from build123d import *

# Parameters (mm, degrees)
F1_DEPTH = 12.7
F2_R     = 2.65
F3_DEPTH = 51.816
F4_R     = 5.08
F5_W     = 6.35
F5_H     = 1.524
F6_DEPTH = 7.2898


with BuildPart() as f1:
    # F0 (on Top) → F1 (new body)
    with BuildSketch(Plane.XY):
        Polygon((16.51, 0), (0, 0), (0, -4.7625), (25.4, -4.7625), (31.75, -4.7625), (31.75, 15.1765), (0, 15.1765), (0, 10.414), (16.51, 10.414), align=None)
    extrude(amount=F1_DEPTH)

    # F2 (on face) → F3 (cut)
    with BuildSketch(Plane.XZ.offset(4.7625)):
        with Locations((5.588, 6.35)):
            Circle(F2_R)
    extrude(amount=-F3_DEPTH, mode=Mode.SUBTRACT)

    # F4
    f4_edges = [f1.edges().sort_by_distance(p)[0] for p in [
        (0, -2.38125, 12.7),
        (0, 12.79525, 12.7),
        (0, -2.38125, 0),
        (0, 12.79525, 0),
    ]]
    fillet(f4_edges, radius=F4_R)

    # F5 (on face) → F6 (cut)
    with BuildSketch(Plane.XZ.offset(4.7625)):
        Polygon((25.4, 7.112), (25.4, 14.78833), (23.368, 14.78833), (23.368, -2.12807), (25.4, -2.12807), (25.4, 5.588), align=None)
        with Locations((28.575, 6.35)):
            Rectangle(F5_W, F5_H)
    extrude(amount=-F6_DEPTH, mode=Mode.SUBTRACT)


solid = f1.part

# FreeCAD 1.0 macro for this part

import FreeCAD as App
import Part
import Sketcher
Q = App.Units.Quantity


def edges_at(feature, points):
    """Names of the edges that pass closest to the given points."""
    edges = feature.Shape.Edges
    near = lambda p: min(range(len(edges)), key=lambda i: edges[i].distToShape(Part.Vertex(*p))[0])
    return sorted({f"Edge{near(p) + 1}" for p in points})


def add_polygon(sketch, points):
    """Adds a closed chain of lines whose ends are joined by coincident constraints."""
    first, n = sketch.GeometryCount, len(points)
    for a, b in zip(points, points[1:] + points[:1]):
        sketch.addGeometry(Part.LineSegment(App.Vector(*a, 0), App.Vector(*b, 0)), False)
    for i in range(n):
        sketch.addConstraint(Sketcher.Constraint("Coincident", first + i, 2, first + (i + 1) % n, 1))

doc = App.newDocument("Part")
body = doc.addObject("PartDesign::Body", "Body")

sketch1 = body.newObject("Sketcher::SketchObject", "Sketch")
sketch1.AttachmentSupport = (doc.getObject("XY_Plane"), [""])
sketch1.MapMode = "FlatFace"
add_polygon(sketch1, [(16.5, 0), (0, 0), (0, -4.8), (31.8, -4.8), (31.8, 15.2), (0, 15.2), (0, 10.4), (16.5, 10.4)])
sketch1.addConstraint(Sketcher.Constraint("Horizontal", 0))
sketch1.addConstraint(Sketcher.Constraint("Vertical", 1))
sketch1.addConstraint(Sketcher.Constraint("Horizontal", 2))
sketch1.addConstraint(Sketcher.Constraint("Vertical", 3))
sketch1.addConstraint(Sketcher.Constraint("Horizontal", 4))
sketch1.addConstraint(Sketcher.Constraint("Vertical", 5))
sketch1.addConstraint(Sketcher.Constraint("Horizontal", 6))
sketch1.addConstraint(Sketcher.Constraint("Vertical", 7))
sketch1.addConstraint(Sketcher.Constraint("Coincident", 0, 2, -1, 1))
sketch1.addConstraint(Sketcher.Constraint("PointOnObject", 4, 2, -2))
sketch1.addConstraint(Sketcher.Constraint("Equal", 1, 5))
sketch1.addConstraint(Sketcher.Constraint("DistanceX", 0, 2, 0, 1, Q("0.65 in")))
sketch1.addConstraint(Sketcher.Constraint("DistanceX", 2, 1, 2, 2, Q("1.25 in")))
sketch1.addConstraint(Sketcher.Constraint("DistanceY", 7, 2, 7, 1, Q("0.41 in")))
sketch1.addConstraint(Sketcher.Constraint("DistanceY", 1, 2, 1, 1, Q("0.1875 in")))
pad1 = body.newObject("PartDesign::Pad", "Pad")
pad1.Profile = sketch1
pad1.Length = Q("0.5 in")

sketch2 = body.newObject("Sketcher::SketchObject", "Sketch001")
sketch2.AttachmentSupport = (doc.getObject("XZ_Plane"), [""])
sketch2.MapMode = "FlatFace"
sketch2.AttachmentOffset = App.Placement(App.Vector(0, 0, 0.1875 * 25.4), App.Rotation())
sketch2.addGeometry(Part.Circle(App.Vector(5.6, 6.3, 0), App.Vector(0, 0, 1), 2.6), False)
sketch2.addConstraint(Sketcher.Constraint("Diameter", 0, Q("5.3 mm")))
sketch2.addConstraint(Sketcher.Constraint("DistanceX", -1, 1, 0, 3, Q("0.22 in")))
sketch2.addConstraint(Sketcher.Constraint("DistanceY", -1, 1, 0, 3, Q("0.25 in")))
pocket1 = body.newObject("PartDesign::Pocket", "Pocket")
pocket1.Profile = sketch2
pocket1.Length = Q("2.04 in")
doc.recompute()

fillet = body.newObject("PartDesign::Fillet", "Fillet")
fillet.Base = (pocket1, edges_at(pocket1, [
    (0, -2.381, 12.7),
    (0, 12.795, 12.7),
    (0, -2.381, 0),
    (0, 12.795, 0),
]))
fillet.Radius = Q("0.2 in")

sketch3 = body.newObject("Sketcher::SketchObject", "Sketch002")
sketch3.AttachmentSupport = (doc.getObject("XZ_Plane"), [""])
sketch3.MapMode = "FlatFace"
sketch3.AttachmentOffset = App.Placement(App.Vector(0, 0, 0.1875 * 25.4), App.Rotation())
add_polygon(sketch3, [(25.4, 14.8), (23.4, 14.8), (23.4, -2.1), (25.4, -2.1), (25.4, 5.6), (31.8, 5.6), (31.8, 7.1), (25.4, 7.1)])
sketch3.addConstraint(Sketcher.Constraint("Horizontal", 0))
sketch3.addConstraint(Sketcher.Constraint("Vertical", 1))
sketch3.addConstraint(Sketcher.Constraint("Horizontal", 2))
sketch3.addConstraint(Sketcher.Constraint("Vertical", 3))
sketch3.addConstraint(Sketcher.Constraint("Horizontal", 4))
sketch3.addConstraint(Sketcher.Constraint("Vertical", 5))
sketch3.addConstraint(Sketcher.Constraint("Horizontal", 6))
sketch3.addConstraint(Sketcher.Constraint("Vertical", 7))
sketch3.addConstraint(Sketcher.Constraint("Vertical", 3, 2, 6, 2))
sketch3.addConstraint(Sketcher.Constraint("DistanceX", -1, 1, 2, 2, Q("1 in")))
sketch3.addConstraint(Sketcher.Constraint("DistanceX", 0, 2, 0, 1, Q("0.08 in")))
sketch3.addConstraint(Sketcher.Constraint("DistanceX", 4, 1, 4, 2, Q("0.25 in")))
sketch3.addConstraint(Sketcher.Constraint("DistanceY", 5, 1, 5, 2, Q("0.06 in")))
sketch3.addConstraint(Sketcher.Constraint("DistanceY", 1, 2, 1, 1, Q("0.666 in")))
sketch3.addConstraint(Sketcher.Constraint("DistanceY", -1, 1, 3, 2, Q("0.22 in")))
sketch3.addConstraint(Sketcher.Constraint("DistanceY", 3, 1, 3, 2, Q("7.71607 mm")))
pocket2 = body.newObject("PartDesign::Pocket", "Pocket001")
pocket2.Profile = sketch3
pocket2.Length = Q("0.287 in")

doc.recompute()
